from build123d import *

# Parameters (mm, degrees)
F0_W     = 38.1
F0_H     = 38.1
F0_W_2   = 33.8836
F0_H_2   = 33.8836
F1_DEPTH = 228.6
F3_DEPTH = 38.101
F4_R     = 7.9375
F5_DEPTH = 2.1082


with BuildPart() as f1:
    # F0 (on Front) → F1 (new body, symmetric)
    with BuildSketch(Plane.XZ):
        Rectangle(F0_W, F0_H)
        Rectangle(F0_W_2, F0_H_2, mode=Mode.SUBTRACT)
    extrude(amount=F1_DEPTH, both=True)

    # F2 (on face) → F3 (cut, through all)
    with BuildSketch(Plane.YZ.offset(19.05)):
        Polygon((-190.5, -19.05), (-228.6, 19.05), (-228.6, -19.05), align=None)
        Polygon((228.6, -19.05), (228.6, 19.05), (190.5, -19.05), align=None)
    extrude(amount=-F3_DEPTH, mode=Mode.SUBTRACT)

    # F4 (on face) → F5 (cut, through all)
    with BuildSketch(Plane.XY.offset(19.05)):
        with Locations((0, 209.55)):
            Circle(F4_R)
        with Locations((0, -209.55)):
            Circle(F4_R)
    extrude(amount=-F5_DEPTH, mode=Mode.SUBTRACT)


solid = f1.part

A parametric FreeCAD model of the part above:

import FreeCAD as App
import Part
import Sketcher
Q = App.Units.Quantity

doc = App.newDocument("Part")
params = doc.addObject("Spreadsheet::Sheet", "Params")
for row, (alias, value) in enumerate([
    ("sketch1_width", "1.5 in"),
    ("sketch1_width2", "1.334 in"),
    ("pad1_length", "18 in"),
    ("sketch2_width", "1.5 in"),
    ("sketch3_diameter", "0.625 in"),
], start=1):
    params.set(f"A{row}", alias)
    params.set(f"B{row}", "=" + value)
    params.setAlias(f"B{row}", alias)

body = doc.addObject("PartDesign::Body", "Body")

# Sketch on XZ plane
sketch1 = body.newObject("Sketcher::SketchObject", "Sketch")
sketch1.AttachmentSupport = (doc.getObject("XZ_Plane"), [""])
sketch1.MapMode = "FlatFace"
sketch1.addGeometry([
    Part.LineSegment(App.Vector(-19.05, 19.05, 0), App.Vector(-19.05, -19.05, 0)),  # 0
    Part.LineSegment(App.Vector(-19.05, -19.05, 0), App.Vector(19.05, -19.05, 0)),  # 1
    Part.LineSegment(App.Vector(19.05, -19.05, 0), App.Vector(19.05, 19.05, 0)),  # 2
    Part.LineSegment(App.Vector(19.05, 19.05, 0), App.Vector(-19.05, 19.05, 0)),  # 3
    Part.LineSegment(App.Vector(16.9418, -16.9418, 0), App.Vector(-16.9418, -16.9418, 0)),  # 4
    Part.LineSegment(App.Vector(-16.9418, -16.9418, 0), App.Vector(-16.9418, 16.9418, 0)),  # 5
    Part.LineSegment(App.Vector(-16.9418, 16.9418, 0), App.Vector(16.9418, 16.9418, 0)),  # 6
    Part.LineSegment(App.Vector(16.9418, 16.9418, 0), App.Vector(16.9418, -16.9418, 0)),  # 7
], False)
sketch1.addConstraint([
    Sketcher.Constraint("Coincident", 0, 2, 1, 1),
    Sketcher.Constraint("Coincident", 1, 2, 2, 1),
    Sketcher.Constraint("Coincident", 2, 2, 3, 1),
    Sketcher.Constraint("Coincident", 3, 2, 0, 1),
    Sketcher.Constraint("Coincident", 4, 2, 5, 1),
    Sketcher.Constraint("Coincident", 5, 2, 6, 1),
    Sketcher.Constraint("Coincident", 6, 2, 7, 1),
    Sketcher.Constraint("Coincident", 7, 2, 4, 1),
    Sketcher.Constraint("Vertical", 0),
    Sketcher.Constraint("Horizontal", 1),
    Sketcher.Constraint("Vertical", 2),
    Sketcher.Constraint("Horizontal", 3),
    Sketcher.Constraint("Horizontal", 4),
    Sketcher.Constraint("Vertical", 5),
    Sketcher.Constraint("Horizontal", 6),
    Sketcher.Constraint("Vertical", 7),
    Sketcher.Constraint("Symmetric", 0, 2, 2, 2, -1, 1),
    Sketcher.Constraint("Symmetric", 4, 2, 6, 2, -1, 1),
    Sketcher.Constraint("Equal", 3, 0),
    Sketcher.Constraint("Equal", 6, 5),
    Sketcher.Constraint("DistanceX", 1, 1, 1, 2, Q("1.5 in")),
    Sketcher.Constraint("DistanceX", 4, 2, 4, 1, Q("1.334 in")),
])
sketch1.setExpression("Constraints[20]", "Params.sketch1_width")
sketch1.setExpression("Constraints[21]", "Params.sketch1_width2")
pad1 = body.newObject("PartDesign::Pad", "Pad")
pad1.Profile = sketch1
pad1.setExpression("Length", "Params.pad1_length")
pad1.Midplane = True

# Sketch on YZ plane
sketch2 = body.newObject("Sketcher::SketchObject", "Sketch001")
sketch2.AttachmentSupport = (doc.getObject("YZ_Plane"), [""])
sketch2.MapMode = "FlatFace"
sketch2.AttachmentOffset = App.Placement(App.Vector(0, 0, 0.75 * 25.4), App.Rotation())
sketch2.addGeometry([
    Part.LineSegment(App.Vector(-190.5, -19.05, 0), App.Vector(-228.6, 19.05, 0)),  # 0
    Part.LineSegment(App.Vector(-228.6, 19.05, 0), App.Vector(-228.6, -19.05, 0)),  # 1
    Part.LineSegment(App.Vector(-228.6, -19.05, 0), App.Vector(-190.5, -19.05, 0)),  # 2
    Part.LineSegment(App.Vector(228.6, -19.05, 0), App.Vector(228.6, 19.05, 0)),  # 3
    Part.LineSegment(App.Vector(228.6, 19.05, 0), App.Vector(190.5, -19.05, 0)),  # 4
    Part.LineSegment(App.Vector(190.5, -19.05, 0), App.Vector(228.6, -19.05, 0)),  # 5
], False)
sketch2.addConstraint([
    Sketcher.Constraint("Coincident", 0, 2, 1, 1),
    Sketcher.Constraint("Coincident", 1, 2, 2, 1),
    Sketcher.Constraint("Coincident", 2, 2, 0, 1),
    Sketcher.Constraint("Coincident", 3, 2, 4, 1),
    Sketcher.Constraint("Coincident", 4, 2, 5, 1),
    Sketcher.Constraint("Coincident", 5, 2, 3, 1),
    Sketcher.Constraint("Vertical", 1),
    Sketcher.Constraint("Horizontal", 2),
    Sketcher.Constraint("Vertical", 3),
    Sketcher.Constraint("Horizontal", 5),
    Sketcher.Constraint("Symmetric", 1, 2, 3, 2, -1, 1),
    Sketcher.Constraint("Symmetric", 2, 2, 4, 2, -2),
    Sketcher.Constraint("Perpendicular", 0, 4),
    Sketcher.Constraint("Horizontal", 0, 2, 3, 2),
    Sketcher.Constraint("DistanceX", 2, 1, 2, 2, Q("1.5 in")),
    Sketcher.Constraint("DistanceX", 0, 2, -1, 1, Q("9 in")),
])
sketch2.setExpression("Constraints[14]", "Params.sketch2_width")
pocket1 = body.newObject("PartDesign::Pocket", "Pocket")
pocket1.Profile = sketch2
pocket1.Type = "ThroughAll"

# Sketch on XY plane
sketch3 = body.newObject("Sketcher::SketchObject", "Sketch002")
sketch3.AttachmentSupport = (doc.getObject("XY_Plane"), [""])
sketch3.MapMode = "FlatFace"
sketch3.AttachmentOffset = App.Placement(App.Vector(0, 0, 0.75 * 25.4), App.Rotation())
sketch3.addGeometry([
    Part.Circle(App.Vector(0, 209.55, 0), App.Vector(0, 0, 1), 7.9375),
    Part.Circle(App.Vector(0, -209.55, 0), App.Vector(0, 0, 1), 7.9375),
], False)
sketch3.addConstraint([
    Sketcher.Constraint("Equal", 0, 1),
    Sketcher.Constraint("Symmetric", 0, 3, 1, 3, -1, 1),
    Sketcher.Constraint("PointOnObject", 0, 3, -2),
    Sketcher.Constraint("Diameter", 0, Q("0.625 in")),
    Sketcher.Constraint("DistanceY", 1, 3, 0, 3, Q("16.5 in")),
])
sketch3.setExpression("Constraints[3]", "Params.sketch3_diameter")
pocket2 = body.newObject("PartDesign::Pocket", "Pocket001")
pocket2.Profile = sketch3
pocket2.Type = "ThroughAll"

doc.recompute()
